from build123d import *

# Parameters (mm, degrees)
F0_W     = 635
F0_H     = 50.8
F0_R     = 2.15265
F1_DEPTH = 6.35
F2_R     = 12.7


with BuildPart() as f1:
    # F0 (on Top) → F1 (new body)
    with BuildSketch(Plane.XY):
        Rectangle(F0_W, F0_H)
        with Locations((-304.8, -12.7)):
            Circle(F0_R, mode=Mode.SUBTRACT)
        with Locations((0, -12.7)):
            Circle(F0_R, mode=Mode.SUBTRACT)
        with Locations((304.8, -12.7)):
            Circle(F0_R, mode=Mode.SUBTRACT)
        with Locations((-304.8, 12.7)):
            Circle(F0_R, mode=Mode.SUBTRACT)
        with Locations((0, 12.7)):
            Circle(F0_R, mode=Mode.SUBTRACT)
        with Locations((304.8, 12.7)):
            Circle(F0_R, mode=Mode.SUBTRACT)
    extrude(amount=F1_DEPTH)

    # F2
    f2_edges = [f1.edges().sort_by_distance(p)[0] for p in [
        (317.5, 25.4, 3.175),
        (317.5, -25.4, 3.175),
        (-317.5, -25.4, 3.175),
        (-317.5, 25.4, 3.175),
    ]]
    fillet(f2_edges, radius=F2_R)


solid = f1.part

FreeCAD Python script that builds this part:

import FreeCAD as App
import Part
import Sketcher

V = App.Vector
Q = App.Units.Quantity


def edges_at(feature, points):
    """Names of the edges that pass closest to the given points."""
    edges = feature.Shape.Edges
    near = lambda p: min(range(len(edges)), key=lambda i: edges[i].distToShape(Part.Vertex(*p))[0])
    return sorted({f"Edge{near(p) + 1}" for p in points})

doc = App.newDocument("Part")
body = doc.addObject("PartDesign::Body", "Body")

# Sketch on XY plane
sketch1 = body.newObject("Sketcher::SketchObject", "Sketch")
sketch1.AttachmentSupport = (doc.getObject("XY_Plane"), [""])
sketch1.MapMode = "FlatFace"
sketch1.addGeometry(Part.LineSegment(V(-317.5, 25.4, 0), V(-317.5, -25.4, 0)), False)
sketch1.addGeometry(Part.LineSegment(V(-317.5, -25.4, 0), V(317.5, -25.4, 0)), False)
sketch1.addGeometry(Part.LineSegment(V(317.5, -25.4, 0), V(317.5, 25.4, 0)), False)
sketch1.addGeometry(Part.LineSegment(V(317.5, 25.4, 0), V(-317.5, 25.4, 0)), False)
sketch1.addGeometry(Part.Circle(V(-304.8, -12.7, 0), V(0, 0, 1), 2.2), False)
sketch1.addGeometry(Part.Circle(V(0, -12.7, 0), V(0, 0, 1), 2.2), False)
sketch1.addGeometry(Part.Circle(V(304.8, -12.7, 0), V(0, 0, 1), 2.2), False)
sketch1.addGeometry(Part.Circle(V(-304.8, 12.7, 0), V(0, 0, 1), 2.2), False)
sketch1.addGeometry(Part.Circle(V(0, 12.7, 0), V(0, 0, 1), 2.2), False)
sketch1.addGeometry(Part.Circle(V(304.8, 12.7, 0), V(0, 0, 1), 2.2), False)
sketch1.addConstraint(Sketcher.Constraint("Coincident", 0, 2, 1, 1))
sketch1.addConstraint(Sketcher.Constraint("Coincident", 1, 2, 2, 1))
sketch1.addConstraint(Sketcher.Constraint("Coincident", 2, 2, 3, 1))
sketch1.addConstraint(Sketcher.Constraint("Coincident", 3, 2, 0, 1))
sketch1.addConstraint(Sketcher.Constraint("Vertical", 0))
sketch1.addConstraint(Sketcher.Constraint("Horizontal", 1))
sketch1.addConstraint(Sketcher.Constraint("Vertical", 2))
sketch1.addConstraint(Sketcher.Constraint("Horizontal", 3))
sketch1.addConstraint(Sketcher.Constraint("Equal", 4, 5))
sketch1.addConstraint(Sketcher.Constraint("Equal", 5, 6))
sketch1.addConstraint(Sketcher.Constraint("Equal", 6, 7))
sketch1.addConstraint(Sketcher.Constraint("Equal", 7, 8))
sketch1.addConstraint(Sketcher.Constraint("Equal", 8, 9))
sketch1.addConstraint(Sketcher.Constraint("Symmetric", 6, 3, 7, 3, -1, 1))
sketch1.addConstraint(Sketcher.Constraint("Symmetric", 5, 3, 8, 3, -1, 1))
sketch1.addConstraint(Sketcher.Constraint("Symmetric", 4, 3, 9, 3, -1, 1))
sketch1.addConstraint(Sketcher.Constraint("Symmetric", 0, 2, 2, 2, -1, 1))
sketch1.addConstraint(Sketcher.Constraint("Symmetric", 4, 3, 6, 3, -2))
sketch1.addConstraint(Sketcher.Constraint("PointOnObject", 5, 3, -2))
sketch1.addConstraint(Sketcher.Constraint("Horizontal", 4, 3, 5, 3))
sketch1.addConstraint(Sketcher.Constraint("DistanceX", 1, 1, 1, 2, Q("25 in")))
sketch1.addConstraint(Sketcher.Constraint("DistanceY", 0, 2, 0, 1, Q("2 in")))
sketch1.addConstraint(Sketcher.Constraint("DistanceX", 4, 3, -1, 1, Q("12 in")))
sketch1.addConstraint(Sketcher.Constraint("DistanceY", 4, 3, 7, 3, Q("1 in")))
sketch1.addConstraint(Sketcher.Constraint("Diameter", 4, Q("0.1695 in")))
pad1 = body.newObject("PartDesign::Pad", "Pad")
pad1.Profile = sketch1
pad1.Length = Q("0.25 in")
doc.recompute()

fillet = body.newObject("PartDesign::Fillet", "Fillet")
fillet.Base = (pad1, edges_at(pad1, [
    (317.5, 25.4, 3.175),
    (317.5, -25.4, 3.175),
    (-317.5, -25.4, 3.175),
    (-317.5, 25.4, 3.175),
]))
fillet.Radius = Q("0.5 in")

doc.recompute()
